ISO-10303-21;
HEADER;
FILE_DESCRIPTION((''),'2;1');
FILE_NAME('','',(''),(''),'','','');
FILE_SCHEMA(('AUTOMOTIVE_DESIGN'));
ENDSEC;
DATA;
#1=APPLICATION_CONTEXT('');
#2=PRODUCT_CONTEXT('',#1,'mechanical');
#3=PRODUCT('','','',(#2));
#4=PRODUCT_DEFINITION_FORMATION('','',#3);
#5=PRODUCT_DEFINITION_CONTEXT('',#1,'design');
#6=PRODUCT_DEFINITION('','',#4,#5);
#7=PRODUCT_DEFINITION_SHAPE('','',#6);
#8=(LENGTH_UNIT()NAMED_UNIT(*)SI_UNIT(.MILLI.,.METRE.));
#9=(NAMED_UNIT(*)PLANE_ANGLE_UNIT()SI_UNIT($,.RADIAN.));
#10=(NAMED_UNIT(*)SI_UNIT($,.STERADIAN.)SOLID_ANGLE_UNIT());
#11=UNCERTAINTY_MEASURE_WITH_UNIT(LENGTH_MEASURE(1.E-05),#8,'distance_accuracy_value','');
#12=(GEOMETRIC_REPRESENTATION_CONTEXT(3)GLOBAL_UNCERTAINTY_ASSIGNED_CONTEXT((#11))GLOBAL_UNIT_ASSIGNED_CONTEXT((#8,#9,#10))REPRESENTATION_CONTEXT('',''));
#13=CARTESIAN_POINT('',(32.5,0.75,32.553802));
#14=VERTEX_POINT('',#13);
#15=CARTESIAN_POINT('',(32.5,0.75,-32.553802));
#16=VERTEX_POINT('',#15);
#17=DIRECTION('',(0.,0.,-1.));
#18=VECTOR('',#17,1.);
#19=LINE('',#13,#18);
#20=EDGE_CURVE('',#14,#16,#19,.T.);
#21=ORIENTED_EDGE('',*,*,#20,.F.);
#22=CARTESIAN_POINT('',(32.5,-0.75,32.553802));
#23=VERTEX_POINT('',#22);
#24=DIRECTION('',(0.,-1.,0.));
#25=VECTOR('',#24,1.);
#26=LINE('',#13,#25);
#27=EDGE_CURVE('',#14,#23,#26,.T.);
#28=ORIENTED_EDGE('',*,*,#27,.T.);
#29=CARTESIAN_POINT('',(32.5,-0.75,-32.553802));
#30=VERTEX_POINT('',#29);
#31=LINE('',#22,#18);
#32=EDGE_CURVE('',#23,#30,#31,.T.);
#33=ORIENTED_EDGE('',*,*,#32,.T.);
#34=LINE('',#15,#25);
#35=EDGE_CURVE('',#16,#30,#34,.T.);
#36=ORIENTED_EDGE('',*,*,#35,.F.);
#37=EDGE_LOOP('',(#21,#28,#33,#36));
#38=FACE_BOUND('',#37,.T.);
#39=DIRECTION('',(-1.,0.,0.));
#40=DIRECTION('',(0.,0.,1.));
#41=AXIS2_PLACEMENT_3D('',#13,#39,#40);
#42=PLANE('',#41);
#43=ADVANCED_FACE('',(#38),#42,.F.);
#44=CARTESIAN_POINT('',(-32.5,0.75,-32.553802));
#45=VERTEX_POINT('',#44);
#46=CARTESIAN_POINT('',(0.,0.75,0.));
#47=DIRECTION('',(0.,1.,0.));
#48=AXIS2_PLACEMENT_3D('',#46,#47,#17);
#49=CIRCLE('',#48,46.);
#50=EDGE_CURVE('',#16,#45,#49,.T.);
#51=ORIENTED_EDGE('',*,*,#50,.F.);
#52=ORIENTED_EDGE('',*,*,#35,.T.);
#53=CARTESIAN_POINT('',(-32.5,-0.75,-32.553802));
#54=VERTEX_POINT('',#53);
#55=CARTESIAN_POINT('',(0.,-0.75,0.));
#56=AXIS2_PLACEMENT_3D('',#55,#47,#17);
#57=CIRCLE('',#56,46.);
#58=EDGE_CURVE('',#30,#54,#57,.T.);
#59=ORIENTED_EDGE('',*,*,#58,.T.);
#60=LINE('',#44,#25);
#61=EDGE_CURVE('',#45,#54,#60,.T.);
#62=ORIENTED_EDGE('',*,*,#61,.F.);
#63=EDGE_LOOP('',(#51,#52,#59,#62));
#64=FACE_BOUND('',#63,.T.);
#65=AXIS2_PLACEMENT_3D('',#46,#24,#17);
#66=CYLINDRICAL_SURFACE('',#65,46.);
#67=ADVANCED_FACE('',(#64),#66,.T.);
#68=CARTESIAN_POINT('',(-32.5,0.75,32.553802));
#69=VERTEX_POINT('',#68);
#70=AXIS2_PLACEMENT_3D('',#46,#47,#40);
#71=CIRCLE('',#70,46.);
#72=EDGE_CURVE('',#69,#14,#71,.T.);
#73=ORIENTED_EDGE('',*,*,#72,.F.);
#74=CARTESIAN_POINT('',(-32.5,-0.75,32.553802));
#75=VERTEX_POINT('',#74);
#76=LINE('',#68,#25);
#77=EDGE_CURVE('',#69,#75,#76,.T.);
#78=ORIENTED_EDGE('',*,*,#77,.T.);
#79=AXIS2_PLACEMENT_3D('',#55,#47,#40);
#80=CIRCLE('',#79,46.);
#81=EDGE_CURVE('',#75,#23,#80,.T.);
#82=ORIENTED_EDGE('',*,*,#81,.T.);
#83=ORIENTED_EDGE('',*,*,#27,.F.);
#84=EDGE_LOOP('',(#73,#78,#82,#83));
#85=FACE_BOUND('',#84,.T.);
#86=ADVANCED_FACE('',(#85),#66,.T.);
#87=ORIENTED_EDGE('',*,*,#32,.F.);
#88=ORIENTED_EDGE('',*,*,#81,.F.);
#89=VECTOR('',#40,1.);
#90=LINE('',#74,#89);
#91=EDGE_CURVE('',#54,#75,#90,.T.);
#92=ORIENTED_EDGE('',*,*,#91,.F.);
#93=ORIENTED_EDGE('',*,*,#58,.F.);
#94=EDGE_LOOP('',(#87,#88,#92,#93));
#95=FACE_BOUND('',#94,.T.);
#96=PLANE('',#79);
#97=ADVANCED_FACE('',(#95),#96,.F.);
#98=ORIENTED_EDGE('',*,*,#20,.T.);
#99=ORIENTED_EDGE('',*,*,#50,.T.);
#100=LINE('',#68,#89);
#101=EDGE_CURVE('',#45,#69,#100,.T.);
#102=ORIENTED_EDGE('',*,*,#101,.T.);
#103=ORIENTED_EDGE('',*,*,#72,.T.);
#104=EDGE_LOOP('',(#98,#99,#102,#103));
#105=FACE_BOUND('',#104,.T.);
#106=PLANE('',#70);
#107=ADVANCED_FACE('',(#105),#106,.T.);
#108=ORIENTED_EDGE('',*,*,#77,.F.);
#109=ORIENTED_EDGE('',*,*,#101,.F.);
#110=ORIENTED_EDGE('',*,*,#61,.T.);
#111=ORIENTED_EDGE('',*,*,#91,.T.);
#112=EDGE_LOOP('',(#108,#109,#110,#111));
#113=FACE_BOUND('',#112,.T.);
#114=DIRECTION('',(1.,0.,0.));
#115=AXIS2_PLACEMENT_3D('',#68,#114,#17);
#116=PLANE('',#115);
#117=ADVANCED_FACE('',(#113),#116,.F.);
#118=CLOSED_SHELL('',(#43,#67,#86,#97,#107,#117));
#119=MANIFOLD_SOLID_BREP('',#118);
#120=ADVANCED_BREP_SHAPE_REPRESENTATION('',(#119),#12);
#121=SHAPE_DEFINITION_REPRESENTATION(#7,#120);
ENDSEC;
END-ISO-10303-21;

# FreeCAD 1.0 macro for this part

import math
import FreeCAD as App
import Part
import Sketcher
Q = App.Units.Quantity

doc = App.newDocument("Part")
params = doc.addObject("Spreadsheet::Sheet", "Params")
for row, (alias, value) in enumerate([
    ("sketch1_radius", "46 mm"),
    ("pad1_length", "1.5 mm"),
], start=1):
    params.set(f"A{row}", alias)
    params.set(f"B{row}", "=" + value)
    params.setAlias(f"B{row}", alias)

body = doc.addObject("PartDesign::Body", "Body")

sketch1 = doc.addObject("Sketcher::SketchObject", "Sketch")
body.addObject(sketch1)
sketch1.AttachmentSupport = (doc.XZ_Plane, [""])
sketch1.MapMode = "FlatFace"
sketch1.addGeometry(Part.LineSegment(App.Vector(32, 33, 0), App.Vector(32, -33, 0)), False)
sketch1.addGeometry(Part.ArcOfCircle(Part.Circle(App.Vector(0, 0, 0), App.Vector(0, 0, 1), 46), math.radians(-135), math.radians(-45)), False)
sketch1.addGeometry(Part.LineSegment(App.Vector(-32, -33, 0), App.Vector(-32, 33, 0)), False)
sketch1.addGeometry(Part.ArcOfCircle(Part.Circle(App.Vector(0, 0, 0), App.Vector(0, 0, 1), 46), math.radians(45), math.radians(135)), False)
sketch1.addConstraint(Sketcher.Constraint("Coincident", 0, 2, 1, 2))
sketch1.addConstraint(Sketcher.Constraint("Coincident", 1, 1, 2, 1))
sketch1.addConstraint(Sketcher.Constraint("Coincident", 2, 2, 3, 2))
sketch1.addConstraint(Sketcher.Constraint("Coincident", 3, 1, 0, 1))
sketch1.addConstraint(Sketcher.Constraint("Vertical", 0))
sketch1.addConstraint(Sketcher.Constraint("Vertical", 2))
sketch1.addConstraint(Sketcher.Constraint("Coincident", 1, 3, -1, 1))
sketch1.addConstraint(Sketcher.Constraint("Coincident", 3, 3, -1, 1))
sketch1.addConstraint(Sketcher.Constraint("Equal", 1, 3))
sketch1.addConstraint(Sketcher.Constraint("Horizontal", 0, 2, 1, 1))
sketch1.addConstraint(Sketcher.Constraint("Radius", 1, Q("46 mm")))
sketch1.addConstraint(Sketcher.Constraint("DistanceX", 1, 1, 0, 2, Q("65 mm")))
sketch1.setExpression("Constraints[10]", "Params.sketch1_radius")
pad1 = doc.addObject("PartDesign::Pad", "Pad")
body.addObject(pad1)
pad1.Profile = sketch1
pad1.setExpression("Length", "Params.pad1_length")
pad1.Midplane = True

doc.recompute()
